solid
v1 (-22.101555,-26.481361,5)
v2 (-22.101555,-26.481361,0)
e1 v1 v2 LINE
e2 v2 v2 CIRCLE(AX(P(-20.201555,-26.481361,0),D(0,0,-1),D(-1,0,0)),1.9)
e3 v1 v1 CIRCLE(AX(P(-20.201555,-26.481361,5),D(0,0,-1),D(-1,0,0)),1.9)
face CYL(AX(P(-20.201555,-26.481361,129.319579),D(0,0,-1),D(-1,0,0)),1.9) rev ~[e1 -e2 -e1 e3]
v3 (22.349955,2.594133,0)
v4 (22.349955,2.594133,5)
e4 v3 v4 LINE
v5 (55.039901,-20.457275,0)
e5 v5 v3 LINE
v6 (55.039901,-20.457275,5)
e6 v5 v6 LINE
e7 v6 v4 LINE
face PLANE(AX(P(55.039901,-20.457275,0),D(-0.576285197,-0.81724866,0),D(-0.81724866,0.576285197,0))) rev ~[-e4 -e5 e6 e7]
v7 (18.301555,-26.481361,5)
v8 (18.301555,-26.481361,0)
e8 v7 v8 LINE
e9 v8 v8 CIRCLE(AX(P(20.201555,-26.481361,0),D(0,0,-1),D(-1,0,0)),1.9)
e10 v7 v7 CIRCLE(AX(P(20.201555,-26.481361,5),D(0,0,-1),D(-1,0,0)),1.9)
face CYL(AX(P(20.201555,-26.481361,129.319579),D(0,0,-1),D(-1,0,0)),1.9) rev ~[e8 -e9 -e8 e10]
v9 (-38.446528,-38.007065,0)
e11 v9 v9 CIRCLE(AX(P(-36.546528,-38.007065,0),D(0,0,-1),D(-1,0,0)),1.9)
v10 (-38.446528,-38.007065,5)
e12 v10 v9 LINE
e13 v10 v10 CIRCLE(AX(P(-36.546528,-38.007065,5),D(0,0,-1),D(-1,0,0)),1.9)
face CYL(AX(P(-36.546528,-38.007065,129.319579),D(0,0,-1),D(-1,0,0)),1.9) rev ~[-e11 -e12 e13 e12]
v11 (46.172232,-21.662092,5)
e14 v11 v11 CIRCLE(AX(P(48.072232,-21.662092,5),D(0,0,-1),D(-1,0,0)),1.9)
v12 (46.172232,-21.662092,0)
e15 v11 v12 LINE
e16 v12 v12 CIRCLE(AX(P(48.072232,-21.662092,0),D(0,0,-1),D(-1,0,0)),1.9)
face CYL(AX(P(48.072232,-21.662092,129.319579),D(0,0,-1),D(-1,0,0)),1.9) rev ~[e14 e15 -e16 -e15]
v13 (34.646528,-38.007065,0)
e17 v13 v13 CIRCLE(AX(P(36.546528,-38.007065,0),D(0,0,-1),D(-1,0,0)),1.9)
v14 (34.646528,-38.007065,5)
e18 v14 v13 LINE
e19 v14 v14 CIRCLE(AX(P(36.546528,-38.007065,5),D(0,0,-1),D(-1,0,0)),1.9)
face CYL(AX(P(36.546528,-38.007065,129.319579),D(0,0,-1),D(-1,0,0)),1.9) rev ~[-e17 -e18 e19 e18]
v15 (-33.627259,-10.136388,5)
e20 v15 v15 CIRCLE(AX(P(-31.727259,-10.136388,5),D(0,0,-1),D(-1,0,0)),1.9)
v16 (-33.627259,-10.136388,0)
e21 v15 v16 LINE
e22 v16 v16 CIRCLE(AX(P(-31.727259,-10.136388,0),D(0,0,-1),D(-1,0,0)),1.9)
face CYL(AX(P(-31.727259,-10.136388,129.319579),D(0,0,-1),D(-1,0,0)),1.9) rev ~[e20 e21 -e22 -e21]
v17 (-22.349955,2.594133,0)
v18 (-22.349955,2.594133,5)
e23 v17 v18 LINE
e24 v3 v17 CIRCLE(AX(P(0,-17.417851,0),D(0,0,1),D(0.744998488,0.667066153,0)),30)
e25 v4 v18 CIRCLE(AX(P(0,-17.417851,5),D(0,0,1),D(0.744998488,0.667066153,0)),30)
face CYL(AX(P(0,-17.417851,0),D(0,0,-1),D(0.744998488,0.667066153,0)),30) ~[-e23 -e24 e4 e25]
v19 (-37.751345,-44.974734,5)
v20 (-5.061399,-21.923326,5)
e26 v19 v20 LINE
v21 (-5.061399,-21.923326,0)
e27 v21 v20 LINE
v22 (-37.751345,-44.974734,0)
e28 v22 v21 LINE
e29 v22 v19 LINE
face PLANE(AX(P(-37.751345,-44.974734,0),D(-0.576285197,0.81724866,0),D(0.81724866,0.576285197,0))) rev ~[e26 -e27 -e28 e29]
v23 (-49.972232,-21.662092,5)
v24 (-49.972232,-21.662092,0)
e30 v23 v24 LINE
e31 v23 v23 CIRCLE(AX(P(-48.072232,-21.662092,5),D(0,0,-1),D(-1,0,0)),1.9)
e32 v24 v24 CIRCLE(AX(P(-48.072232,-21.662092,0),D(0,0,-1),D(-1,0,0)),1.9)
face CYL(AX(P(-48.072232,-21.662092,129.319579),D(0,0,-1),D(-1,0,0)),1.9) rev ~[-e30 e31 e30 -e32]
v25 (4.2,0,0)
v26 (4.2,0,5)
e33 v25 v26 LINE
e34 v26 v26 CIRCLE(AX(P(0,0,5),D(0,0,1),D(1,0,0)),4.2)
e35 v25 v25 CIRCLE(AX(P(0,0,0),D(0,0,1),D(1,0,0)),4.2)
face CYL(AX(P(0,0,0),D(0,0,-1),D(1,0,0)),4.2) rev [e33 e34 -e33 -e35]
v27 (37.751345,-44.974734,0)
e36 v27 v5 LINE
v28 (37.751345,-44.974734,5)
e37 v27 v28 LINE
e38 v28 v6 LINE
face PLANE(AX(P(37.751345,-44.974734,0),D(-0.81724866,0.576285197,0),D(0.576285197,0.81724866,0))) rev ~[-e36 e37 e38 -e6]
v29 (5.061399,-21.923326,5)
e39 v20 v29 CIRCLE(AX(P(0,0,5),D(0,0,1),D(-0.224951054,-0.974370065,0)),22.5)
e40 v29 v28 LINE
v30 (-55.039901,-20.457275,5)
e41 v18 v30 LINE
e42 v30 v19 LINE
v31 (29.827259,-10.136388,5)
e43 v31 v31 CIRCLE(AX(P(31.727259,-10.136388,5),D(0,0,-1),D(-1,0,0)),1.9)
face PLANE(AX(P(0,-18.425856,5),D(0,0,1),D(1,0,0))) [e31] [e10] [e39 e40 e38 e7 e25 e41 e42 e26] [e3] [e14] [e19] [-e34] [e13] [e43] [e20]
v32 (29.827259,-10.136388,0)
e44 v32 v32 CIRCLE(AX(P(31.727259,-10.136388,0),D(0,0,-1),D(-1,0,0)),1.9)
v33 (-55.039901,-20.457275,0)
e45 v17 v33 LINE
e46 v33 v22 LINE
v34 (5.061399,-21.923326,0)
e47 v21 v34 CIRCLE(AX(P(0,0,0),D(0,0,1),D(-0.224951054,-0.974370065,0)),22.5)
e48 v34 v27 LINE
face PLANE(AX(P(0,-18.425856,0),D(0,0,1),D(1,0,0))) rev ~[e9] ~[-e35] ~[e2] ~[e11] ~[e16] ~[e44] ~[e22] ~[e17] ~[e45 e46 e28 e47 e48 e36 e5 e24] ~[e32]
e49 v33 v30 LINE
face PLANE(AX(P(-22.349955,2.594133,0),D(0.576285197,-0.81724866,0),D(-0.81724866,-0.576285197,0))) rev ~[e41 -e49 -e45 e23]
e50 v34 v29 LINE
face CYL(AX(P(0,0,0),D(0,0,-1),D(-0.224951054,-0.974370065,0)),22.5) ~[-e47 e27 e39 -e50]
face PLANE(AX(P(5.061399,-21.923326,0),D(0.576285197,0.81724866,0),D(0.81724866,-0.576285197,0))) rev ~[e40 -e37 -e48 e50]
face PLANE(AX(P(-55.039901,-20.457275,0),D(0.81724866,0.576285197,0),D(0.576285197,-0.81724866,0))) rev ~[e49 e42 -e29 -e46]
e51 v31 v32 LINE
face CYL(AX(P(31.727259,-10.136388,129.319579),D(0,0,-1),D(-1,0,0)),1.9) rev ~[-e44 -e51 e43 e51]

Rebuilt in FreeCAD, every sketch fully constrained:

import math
import FreeCAD as App
import Part
import Sketcher
from FreeCAD import Vector

doc = App.newDocument("Part")
body = doc.addObject("PartDesign::Body", "Body")

sketch1 = body.newObject("Sketcher::SketchObject", "Sketch")
sketch1.AttachmentSupport = (doc.getObject("XY_Plane"), [""])
sketch1.MapMode = "FlatFace"
sketch1.addGeometry([
    Part.LineSegment(Vector(5.061399, -21.923326, 0), Vector(37.751345, -44.974734, 0)),
    Part.LineSegment(Vector(37.751345, -44.974734, 0), Vector(55.039901, -20.457275, 0)),
    Part.LineSegment(Vector(55.039901, -20.457275, 0), Vector(22.349955, 2.594133, 0)),
    Part.ArcOfCircle(Part.Circle(Vector(0, -17.417851, 0), Vector(0, 0, 1), 30), math.radians(41.841031), math.radians(138.158969)),
    Part.LineSegment(Vector(-22.349955, 2.594133, 0), Vector(-55.039901, -20.457275, 0)),
    Part.LineSegment(Vector(-55.039901, -20.457275, 0), Vector(-37.751345, -44.974734, 0)),
    Part.LineSegment(Vector(-37.751345, -44.974734, 0), Vector(-5.061399, -21.923326, 0)),
    Part.ArcOfCircle(Part.Circle(Vector(0, 0, 0), Vector(0, 0, 1), 22.5), math.radians(-103), math.radians(-77)),
    Part.Circle(Vector(0, 0, 0), Vector(0, 0, 1), 4.2),
], False)
sketch1.addConstraint([
    Sketcher.Constraint("Coincident", 0, 2, 1, 1),
    Sketcher.Constraint("Coincident", 1, 2, 2, 1),
    Sketcher.Constraint("Coincident", 2, 2, 3, 1),
    Sketcher.Constraint("Coincident", 3, 2, 4, 1),
    Sketcher.Constraint("Coincident", 4, 2, 5, 1),
    Sketcher.Constraint("Coincident", 5, 2, 6, 1),
    Sketcher.Constraint("Coincident", 6, 2, 7, 1),
    Sketcher.Constraint("Coincident", 7, 2, 0, 1),
    Sketcher.Constraint("Coincident", 7, 3, -1, 1),
    Sketcher.Constraint("Coincident", 8, 3, -1, 1),
    Sketcher.Constraint("Symmetric", 2, 2, 3, 2, -2),
    Sketcher.Constraint("Symmetric", 1, 2, 4, 2, -2),
    Sketcher.Constraint("Symmetric", 0, 2, 5, 2, -2),
    Sketcher.Constraint("Perpendicular", 0, 1),
    Sketcher.Constraint("Perpendicular", 1, 2),
    Sketcher.Constraint("Perpendicular", 5, 6),
    Sketcher.Constraint("Equal", 0, 2),
    Sketcher.Constraint("Radius", 3, 30.0),
    Sketcher.Constraint("Diameter", 8, 8.4),
    Sketcher.Constraint("Radius", 7, 22.5),
    Sketcher.Constraint("Distance", 0, 40.0),
    Sketcher.Constraint("Distance", 1, 30.0),
    Sketcher.Constraint("DistanceX", -1, 1, 1, 2, 55.039901),
    Sketcher.Constraint("DistanceX", 6, 2, -1, 1, 5.061399),
])
pad1 = body.newObject("PartDesign::Pad", "Pad")
pad1.Profile = sketch1
pad1.Length = 5

sketch2 = body.newObject("Sketcher::SketchObject", "Sketch001")
sketch2.AttachmentSupport = (doc.getObject("XY_Plane"), [""])
sketch2.MapMode = "FlatFace"
sketch2.AttachmentOffset = App.Placement(Vector(0, 0, 5), App.Rotation())
sketch2.addGeometry([
    Part.Circle(Vector(-31.727259, -10.136388, 0), Vector(0, 0, 1), 1.9),
    Part.Circle(Vector(-20.201555, -26.481361, 0), Vector(0, 0, 1), 1.9),
    Part.Circle(Vector(-36.546528, -38.007065, 0), Vector(0, 0, 1), 1.9),
    Part.Circle(Vector(-48.072232, -21.662092, 0), Vector(0, 0, 1), 1.9),
    Part.Circle(Vector(31.727259, -10.136388, 0), Vector(0, 0, 1), 1.9),
    Part.Circle(Vector(48.072232, -21.662092, 0), Vector(0, 0, 1), 1.9),
    Part.Circle(Vector(20.201555, -26.481361, 0), Vector(0, 0, 1), 1.9),
    Part.Circle(Vector(36.546528, -38.007065, 0), Vector(0, 0, 1), 1.9),
], False)
sketch2.addConstraint([
    Sketcher.Constraint("Equal", 0, 1),
    Sketcher.Constraint("Equal", 1, 2),
    Sketcher.Constraint("Equal", 2, 3),
    Sketcher.Constraint("Equal", 3, 4),
    Sketcher.Constraint("Equal", 4, 5),
    Sketcher.Constraint("Equal", 5, 6),
    Sketcher.Constraint("Equal", 6, 7),
    Sketcher.Constraint("Symmetric", 0, 3, 4, 3, -2),
    Sketcher.Constraint("Symmetric", 3, 3, 5, 3, -2),
    Sketcher.Constraint("Symmetric", 1, 3, 6, 3, -2),
    Sketcher.Constraint("Symmetric", 2, 3, 7, 3, -2),
    Sketcher.Constraint("Diameter", 0, 3.8),
    Sketcher.Constraint("DistanceX", 0, 3, -1, 1, 31.727259),
    Sketcher.Constraint("DistanceY", 1, 3, -1, 1, 26.481361),
    Sketcher.Constraint("DistanceX", 3, 3, -1, 1, 48.072232),
    Sketcher.Constraint("DistanceY", 3, 3, -1, 1, 21.662092),
    Sketcher.Constraint("DistanceX", 2, 3, 0, 3, 4.819269),
    Sketcher.Constraint("DistanceX", 1, 3, 6, 3, 40.403109),
    Sketcher.Constraint("DistanceY", 0, 3, -1, 1, 10.136388),
    Sketcher.Constraint("DistanceY", 2, 3, -1, 1, 38.007065),
])
doc.recompute()
hole = body.newObject("PartDesign::Hole", "Hole")
hole.Profile = sketch2
hole.ThreadType = "None"
hole.Diameter = 3.8
hole.DepthType = "ThroughAll"

doc.recompute()
